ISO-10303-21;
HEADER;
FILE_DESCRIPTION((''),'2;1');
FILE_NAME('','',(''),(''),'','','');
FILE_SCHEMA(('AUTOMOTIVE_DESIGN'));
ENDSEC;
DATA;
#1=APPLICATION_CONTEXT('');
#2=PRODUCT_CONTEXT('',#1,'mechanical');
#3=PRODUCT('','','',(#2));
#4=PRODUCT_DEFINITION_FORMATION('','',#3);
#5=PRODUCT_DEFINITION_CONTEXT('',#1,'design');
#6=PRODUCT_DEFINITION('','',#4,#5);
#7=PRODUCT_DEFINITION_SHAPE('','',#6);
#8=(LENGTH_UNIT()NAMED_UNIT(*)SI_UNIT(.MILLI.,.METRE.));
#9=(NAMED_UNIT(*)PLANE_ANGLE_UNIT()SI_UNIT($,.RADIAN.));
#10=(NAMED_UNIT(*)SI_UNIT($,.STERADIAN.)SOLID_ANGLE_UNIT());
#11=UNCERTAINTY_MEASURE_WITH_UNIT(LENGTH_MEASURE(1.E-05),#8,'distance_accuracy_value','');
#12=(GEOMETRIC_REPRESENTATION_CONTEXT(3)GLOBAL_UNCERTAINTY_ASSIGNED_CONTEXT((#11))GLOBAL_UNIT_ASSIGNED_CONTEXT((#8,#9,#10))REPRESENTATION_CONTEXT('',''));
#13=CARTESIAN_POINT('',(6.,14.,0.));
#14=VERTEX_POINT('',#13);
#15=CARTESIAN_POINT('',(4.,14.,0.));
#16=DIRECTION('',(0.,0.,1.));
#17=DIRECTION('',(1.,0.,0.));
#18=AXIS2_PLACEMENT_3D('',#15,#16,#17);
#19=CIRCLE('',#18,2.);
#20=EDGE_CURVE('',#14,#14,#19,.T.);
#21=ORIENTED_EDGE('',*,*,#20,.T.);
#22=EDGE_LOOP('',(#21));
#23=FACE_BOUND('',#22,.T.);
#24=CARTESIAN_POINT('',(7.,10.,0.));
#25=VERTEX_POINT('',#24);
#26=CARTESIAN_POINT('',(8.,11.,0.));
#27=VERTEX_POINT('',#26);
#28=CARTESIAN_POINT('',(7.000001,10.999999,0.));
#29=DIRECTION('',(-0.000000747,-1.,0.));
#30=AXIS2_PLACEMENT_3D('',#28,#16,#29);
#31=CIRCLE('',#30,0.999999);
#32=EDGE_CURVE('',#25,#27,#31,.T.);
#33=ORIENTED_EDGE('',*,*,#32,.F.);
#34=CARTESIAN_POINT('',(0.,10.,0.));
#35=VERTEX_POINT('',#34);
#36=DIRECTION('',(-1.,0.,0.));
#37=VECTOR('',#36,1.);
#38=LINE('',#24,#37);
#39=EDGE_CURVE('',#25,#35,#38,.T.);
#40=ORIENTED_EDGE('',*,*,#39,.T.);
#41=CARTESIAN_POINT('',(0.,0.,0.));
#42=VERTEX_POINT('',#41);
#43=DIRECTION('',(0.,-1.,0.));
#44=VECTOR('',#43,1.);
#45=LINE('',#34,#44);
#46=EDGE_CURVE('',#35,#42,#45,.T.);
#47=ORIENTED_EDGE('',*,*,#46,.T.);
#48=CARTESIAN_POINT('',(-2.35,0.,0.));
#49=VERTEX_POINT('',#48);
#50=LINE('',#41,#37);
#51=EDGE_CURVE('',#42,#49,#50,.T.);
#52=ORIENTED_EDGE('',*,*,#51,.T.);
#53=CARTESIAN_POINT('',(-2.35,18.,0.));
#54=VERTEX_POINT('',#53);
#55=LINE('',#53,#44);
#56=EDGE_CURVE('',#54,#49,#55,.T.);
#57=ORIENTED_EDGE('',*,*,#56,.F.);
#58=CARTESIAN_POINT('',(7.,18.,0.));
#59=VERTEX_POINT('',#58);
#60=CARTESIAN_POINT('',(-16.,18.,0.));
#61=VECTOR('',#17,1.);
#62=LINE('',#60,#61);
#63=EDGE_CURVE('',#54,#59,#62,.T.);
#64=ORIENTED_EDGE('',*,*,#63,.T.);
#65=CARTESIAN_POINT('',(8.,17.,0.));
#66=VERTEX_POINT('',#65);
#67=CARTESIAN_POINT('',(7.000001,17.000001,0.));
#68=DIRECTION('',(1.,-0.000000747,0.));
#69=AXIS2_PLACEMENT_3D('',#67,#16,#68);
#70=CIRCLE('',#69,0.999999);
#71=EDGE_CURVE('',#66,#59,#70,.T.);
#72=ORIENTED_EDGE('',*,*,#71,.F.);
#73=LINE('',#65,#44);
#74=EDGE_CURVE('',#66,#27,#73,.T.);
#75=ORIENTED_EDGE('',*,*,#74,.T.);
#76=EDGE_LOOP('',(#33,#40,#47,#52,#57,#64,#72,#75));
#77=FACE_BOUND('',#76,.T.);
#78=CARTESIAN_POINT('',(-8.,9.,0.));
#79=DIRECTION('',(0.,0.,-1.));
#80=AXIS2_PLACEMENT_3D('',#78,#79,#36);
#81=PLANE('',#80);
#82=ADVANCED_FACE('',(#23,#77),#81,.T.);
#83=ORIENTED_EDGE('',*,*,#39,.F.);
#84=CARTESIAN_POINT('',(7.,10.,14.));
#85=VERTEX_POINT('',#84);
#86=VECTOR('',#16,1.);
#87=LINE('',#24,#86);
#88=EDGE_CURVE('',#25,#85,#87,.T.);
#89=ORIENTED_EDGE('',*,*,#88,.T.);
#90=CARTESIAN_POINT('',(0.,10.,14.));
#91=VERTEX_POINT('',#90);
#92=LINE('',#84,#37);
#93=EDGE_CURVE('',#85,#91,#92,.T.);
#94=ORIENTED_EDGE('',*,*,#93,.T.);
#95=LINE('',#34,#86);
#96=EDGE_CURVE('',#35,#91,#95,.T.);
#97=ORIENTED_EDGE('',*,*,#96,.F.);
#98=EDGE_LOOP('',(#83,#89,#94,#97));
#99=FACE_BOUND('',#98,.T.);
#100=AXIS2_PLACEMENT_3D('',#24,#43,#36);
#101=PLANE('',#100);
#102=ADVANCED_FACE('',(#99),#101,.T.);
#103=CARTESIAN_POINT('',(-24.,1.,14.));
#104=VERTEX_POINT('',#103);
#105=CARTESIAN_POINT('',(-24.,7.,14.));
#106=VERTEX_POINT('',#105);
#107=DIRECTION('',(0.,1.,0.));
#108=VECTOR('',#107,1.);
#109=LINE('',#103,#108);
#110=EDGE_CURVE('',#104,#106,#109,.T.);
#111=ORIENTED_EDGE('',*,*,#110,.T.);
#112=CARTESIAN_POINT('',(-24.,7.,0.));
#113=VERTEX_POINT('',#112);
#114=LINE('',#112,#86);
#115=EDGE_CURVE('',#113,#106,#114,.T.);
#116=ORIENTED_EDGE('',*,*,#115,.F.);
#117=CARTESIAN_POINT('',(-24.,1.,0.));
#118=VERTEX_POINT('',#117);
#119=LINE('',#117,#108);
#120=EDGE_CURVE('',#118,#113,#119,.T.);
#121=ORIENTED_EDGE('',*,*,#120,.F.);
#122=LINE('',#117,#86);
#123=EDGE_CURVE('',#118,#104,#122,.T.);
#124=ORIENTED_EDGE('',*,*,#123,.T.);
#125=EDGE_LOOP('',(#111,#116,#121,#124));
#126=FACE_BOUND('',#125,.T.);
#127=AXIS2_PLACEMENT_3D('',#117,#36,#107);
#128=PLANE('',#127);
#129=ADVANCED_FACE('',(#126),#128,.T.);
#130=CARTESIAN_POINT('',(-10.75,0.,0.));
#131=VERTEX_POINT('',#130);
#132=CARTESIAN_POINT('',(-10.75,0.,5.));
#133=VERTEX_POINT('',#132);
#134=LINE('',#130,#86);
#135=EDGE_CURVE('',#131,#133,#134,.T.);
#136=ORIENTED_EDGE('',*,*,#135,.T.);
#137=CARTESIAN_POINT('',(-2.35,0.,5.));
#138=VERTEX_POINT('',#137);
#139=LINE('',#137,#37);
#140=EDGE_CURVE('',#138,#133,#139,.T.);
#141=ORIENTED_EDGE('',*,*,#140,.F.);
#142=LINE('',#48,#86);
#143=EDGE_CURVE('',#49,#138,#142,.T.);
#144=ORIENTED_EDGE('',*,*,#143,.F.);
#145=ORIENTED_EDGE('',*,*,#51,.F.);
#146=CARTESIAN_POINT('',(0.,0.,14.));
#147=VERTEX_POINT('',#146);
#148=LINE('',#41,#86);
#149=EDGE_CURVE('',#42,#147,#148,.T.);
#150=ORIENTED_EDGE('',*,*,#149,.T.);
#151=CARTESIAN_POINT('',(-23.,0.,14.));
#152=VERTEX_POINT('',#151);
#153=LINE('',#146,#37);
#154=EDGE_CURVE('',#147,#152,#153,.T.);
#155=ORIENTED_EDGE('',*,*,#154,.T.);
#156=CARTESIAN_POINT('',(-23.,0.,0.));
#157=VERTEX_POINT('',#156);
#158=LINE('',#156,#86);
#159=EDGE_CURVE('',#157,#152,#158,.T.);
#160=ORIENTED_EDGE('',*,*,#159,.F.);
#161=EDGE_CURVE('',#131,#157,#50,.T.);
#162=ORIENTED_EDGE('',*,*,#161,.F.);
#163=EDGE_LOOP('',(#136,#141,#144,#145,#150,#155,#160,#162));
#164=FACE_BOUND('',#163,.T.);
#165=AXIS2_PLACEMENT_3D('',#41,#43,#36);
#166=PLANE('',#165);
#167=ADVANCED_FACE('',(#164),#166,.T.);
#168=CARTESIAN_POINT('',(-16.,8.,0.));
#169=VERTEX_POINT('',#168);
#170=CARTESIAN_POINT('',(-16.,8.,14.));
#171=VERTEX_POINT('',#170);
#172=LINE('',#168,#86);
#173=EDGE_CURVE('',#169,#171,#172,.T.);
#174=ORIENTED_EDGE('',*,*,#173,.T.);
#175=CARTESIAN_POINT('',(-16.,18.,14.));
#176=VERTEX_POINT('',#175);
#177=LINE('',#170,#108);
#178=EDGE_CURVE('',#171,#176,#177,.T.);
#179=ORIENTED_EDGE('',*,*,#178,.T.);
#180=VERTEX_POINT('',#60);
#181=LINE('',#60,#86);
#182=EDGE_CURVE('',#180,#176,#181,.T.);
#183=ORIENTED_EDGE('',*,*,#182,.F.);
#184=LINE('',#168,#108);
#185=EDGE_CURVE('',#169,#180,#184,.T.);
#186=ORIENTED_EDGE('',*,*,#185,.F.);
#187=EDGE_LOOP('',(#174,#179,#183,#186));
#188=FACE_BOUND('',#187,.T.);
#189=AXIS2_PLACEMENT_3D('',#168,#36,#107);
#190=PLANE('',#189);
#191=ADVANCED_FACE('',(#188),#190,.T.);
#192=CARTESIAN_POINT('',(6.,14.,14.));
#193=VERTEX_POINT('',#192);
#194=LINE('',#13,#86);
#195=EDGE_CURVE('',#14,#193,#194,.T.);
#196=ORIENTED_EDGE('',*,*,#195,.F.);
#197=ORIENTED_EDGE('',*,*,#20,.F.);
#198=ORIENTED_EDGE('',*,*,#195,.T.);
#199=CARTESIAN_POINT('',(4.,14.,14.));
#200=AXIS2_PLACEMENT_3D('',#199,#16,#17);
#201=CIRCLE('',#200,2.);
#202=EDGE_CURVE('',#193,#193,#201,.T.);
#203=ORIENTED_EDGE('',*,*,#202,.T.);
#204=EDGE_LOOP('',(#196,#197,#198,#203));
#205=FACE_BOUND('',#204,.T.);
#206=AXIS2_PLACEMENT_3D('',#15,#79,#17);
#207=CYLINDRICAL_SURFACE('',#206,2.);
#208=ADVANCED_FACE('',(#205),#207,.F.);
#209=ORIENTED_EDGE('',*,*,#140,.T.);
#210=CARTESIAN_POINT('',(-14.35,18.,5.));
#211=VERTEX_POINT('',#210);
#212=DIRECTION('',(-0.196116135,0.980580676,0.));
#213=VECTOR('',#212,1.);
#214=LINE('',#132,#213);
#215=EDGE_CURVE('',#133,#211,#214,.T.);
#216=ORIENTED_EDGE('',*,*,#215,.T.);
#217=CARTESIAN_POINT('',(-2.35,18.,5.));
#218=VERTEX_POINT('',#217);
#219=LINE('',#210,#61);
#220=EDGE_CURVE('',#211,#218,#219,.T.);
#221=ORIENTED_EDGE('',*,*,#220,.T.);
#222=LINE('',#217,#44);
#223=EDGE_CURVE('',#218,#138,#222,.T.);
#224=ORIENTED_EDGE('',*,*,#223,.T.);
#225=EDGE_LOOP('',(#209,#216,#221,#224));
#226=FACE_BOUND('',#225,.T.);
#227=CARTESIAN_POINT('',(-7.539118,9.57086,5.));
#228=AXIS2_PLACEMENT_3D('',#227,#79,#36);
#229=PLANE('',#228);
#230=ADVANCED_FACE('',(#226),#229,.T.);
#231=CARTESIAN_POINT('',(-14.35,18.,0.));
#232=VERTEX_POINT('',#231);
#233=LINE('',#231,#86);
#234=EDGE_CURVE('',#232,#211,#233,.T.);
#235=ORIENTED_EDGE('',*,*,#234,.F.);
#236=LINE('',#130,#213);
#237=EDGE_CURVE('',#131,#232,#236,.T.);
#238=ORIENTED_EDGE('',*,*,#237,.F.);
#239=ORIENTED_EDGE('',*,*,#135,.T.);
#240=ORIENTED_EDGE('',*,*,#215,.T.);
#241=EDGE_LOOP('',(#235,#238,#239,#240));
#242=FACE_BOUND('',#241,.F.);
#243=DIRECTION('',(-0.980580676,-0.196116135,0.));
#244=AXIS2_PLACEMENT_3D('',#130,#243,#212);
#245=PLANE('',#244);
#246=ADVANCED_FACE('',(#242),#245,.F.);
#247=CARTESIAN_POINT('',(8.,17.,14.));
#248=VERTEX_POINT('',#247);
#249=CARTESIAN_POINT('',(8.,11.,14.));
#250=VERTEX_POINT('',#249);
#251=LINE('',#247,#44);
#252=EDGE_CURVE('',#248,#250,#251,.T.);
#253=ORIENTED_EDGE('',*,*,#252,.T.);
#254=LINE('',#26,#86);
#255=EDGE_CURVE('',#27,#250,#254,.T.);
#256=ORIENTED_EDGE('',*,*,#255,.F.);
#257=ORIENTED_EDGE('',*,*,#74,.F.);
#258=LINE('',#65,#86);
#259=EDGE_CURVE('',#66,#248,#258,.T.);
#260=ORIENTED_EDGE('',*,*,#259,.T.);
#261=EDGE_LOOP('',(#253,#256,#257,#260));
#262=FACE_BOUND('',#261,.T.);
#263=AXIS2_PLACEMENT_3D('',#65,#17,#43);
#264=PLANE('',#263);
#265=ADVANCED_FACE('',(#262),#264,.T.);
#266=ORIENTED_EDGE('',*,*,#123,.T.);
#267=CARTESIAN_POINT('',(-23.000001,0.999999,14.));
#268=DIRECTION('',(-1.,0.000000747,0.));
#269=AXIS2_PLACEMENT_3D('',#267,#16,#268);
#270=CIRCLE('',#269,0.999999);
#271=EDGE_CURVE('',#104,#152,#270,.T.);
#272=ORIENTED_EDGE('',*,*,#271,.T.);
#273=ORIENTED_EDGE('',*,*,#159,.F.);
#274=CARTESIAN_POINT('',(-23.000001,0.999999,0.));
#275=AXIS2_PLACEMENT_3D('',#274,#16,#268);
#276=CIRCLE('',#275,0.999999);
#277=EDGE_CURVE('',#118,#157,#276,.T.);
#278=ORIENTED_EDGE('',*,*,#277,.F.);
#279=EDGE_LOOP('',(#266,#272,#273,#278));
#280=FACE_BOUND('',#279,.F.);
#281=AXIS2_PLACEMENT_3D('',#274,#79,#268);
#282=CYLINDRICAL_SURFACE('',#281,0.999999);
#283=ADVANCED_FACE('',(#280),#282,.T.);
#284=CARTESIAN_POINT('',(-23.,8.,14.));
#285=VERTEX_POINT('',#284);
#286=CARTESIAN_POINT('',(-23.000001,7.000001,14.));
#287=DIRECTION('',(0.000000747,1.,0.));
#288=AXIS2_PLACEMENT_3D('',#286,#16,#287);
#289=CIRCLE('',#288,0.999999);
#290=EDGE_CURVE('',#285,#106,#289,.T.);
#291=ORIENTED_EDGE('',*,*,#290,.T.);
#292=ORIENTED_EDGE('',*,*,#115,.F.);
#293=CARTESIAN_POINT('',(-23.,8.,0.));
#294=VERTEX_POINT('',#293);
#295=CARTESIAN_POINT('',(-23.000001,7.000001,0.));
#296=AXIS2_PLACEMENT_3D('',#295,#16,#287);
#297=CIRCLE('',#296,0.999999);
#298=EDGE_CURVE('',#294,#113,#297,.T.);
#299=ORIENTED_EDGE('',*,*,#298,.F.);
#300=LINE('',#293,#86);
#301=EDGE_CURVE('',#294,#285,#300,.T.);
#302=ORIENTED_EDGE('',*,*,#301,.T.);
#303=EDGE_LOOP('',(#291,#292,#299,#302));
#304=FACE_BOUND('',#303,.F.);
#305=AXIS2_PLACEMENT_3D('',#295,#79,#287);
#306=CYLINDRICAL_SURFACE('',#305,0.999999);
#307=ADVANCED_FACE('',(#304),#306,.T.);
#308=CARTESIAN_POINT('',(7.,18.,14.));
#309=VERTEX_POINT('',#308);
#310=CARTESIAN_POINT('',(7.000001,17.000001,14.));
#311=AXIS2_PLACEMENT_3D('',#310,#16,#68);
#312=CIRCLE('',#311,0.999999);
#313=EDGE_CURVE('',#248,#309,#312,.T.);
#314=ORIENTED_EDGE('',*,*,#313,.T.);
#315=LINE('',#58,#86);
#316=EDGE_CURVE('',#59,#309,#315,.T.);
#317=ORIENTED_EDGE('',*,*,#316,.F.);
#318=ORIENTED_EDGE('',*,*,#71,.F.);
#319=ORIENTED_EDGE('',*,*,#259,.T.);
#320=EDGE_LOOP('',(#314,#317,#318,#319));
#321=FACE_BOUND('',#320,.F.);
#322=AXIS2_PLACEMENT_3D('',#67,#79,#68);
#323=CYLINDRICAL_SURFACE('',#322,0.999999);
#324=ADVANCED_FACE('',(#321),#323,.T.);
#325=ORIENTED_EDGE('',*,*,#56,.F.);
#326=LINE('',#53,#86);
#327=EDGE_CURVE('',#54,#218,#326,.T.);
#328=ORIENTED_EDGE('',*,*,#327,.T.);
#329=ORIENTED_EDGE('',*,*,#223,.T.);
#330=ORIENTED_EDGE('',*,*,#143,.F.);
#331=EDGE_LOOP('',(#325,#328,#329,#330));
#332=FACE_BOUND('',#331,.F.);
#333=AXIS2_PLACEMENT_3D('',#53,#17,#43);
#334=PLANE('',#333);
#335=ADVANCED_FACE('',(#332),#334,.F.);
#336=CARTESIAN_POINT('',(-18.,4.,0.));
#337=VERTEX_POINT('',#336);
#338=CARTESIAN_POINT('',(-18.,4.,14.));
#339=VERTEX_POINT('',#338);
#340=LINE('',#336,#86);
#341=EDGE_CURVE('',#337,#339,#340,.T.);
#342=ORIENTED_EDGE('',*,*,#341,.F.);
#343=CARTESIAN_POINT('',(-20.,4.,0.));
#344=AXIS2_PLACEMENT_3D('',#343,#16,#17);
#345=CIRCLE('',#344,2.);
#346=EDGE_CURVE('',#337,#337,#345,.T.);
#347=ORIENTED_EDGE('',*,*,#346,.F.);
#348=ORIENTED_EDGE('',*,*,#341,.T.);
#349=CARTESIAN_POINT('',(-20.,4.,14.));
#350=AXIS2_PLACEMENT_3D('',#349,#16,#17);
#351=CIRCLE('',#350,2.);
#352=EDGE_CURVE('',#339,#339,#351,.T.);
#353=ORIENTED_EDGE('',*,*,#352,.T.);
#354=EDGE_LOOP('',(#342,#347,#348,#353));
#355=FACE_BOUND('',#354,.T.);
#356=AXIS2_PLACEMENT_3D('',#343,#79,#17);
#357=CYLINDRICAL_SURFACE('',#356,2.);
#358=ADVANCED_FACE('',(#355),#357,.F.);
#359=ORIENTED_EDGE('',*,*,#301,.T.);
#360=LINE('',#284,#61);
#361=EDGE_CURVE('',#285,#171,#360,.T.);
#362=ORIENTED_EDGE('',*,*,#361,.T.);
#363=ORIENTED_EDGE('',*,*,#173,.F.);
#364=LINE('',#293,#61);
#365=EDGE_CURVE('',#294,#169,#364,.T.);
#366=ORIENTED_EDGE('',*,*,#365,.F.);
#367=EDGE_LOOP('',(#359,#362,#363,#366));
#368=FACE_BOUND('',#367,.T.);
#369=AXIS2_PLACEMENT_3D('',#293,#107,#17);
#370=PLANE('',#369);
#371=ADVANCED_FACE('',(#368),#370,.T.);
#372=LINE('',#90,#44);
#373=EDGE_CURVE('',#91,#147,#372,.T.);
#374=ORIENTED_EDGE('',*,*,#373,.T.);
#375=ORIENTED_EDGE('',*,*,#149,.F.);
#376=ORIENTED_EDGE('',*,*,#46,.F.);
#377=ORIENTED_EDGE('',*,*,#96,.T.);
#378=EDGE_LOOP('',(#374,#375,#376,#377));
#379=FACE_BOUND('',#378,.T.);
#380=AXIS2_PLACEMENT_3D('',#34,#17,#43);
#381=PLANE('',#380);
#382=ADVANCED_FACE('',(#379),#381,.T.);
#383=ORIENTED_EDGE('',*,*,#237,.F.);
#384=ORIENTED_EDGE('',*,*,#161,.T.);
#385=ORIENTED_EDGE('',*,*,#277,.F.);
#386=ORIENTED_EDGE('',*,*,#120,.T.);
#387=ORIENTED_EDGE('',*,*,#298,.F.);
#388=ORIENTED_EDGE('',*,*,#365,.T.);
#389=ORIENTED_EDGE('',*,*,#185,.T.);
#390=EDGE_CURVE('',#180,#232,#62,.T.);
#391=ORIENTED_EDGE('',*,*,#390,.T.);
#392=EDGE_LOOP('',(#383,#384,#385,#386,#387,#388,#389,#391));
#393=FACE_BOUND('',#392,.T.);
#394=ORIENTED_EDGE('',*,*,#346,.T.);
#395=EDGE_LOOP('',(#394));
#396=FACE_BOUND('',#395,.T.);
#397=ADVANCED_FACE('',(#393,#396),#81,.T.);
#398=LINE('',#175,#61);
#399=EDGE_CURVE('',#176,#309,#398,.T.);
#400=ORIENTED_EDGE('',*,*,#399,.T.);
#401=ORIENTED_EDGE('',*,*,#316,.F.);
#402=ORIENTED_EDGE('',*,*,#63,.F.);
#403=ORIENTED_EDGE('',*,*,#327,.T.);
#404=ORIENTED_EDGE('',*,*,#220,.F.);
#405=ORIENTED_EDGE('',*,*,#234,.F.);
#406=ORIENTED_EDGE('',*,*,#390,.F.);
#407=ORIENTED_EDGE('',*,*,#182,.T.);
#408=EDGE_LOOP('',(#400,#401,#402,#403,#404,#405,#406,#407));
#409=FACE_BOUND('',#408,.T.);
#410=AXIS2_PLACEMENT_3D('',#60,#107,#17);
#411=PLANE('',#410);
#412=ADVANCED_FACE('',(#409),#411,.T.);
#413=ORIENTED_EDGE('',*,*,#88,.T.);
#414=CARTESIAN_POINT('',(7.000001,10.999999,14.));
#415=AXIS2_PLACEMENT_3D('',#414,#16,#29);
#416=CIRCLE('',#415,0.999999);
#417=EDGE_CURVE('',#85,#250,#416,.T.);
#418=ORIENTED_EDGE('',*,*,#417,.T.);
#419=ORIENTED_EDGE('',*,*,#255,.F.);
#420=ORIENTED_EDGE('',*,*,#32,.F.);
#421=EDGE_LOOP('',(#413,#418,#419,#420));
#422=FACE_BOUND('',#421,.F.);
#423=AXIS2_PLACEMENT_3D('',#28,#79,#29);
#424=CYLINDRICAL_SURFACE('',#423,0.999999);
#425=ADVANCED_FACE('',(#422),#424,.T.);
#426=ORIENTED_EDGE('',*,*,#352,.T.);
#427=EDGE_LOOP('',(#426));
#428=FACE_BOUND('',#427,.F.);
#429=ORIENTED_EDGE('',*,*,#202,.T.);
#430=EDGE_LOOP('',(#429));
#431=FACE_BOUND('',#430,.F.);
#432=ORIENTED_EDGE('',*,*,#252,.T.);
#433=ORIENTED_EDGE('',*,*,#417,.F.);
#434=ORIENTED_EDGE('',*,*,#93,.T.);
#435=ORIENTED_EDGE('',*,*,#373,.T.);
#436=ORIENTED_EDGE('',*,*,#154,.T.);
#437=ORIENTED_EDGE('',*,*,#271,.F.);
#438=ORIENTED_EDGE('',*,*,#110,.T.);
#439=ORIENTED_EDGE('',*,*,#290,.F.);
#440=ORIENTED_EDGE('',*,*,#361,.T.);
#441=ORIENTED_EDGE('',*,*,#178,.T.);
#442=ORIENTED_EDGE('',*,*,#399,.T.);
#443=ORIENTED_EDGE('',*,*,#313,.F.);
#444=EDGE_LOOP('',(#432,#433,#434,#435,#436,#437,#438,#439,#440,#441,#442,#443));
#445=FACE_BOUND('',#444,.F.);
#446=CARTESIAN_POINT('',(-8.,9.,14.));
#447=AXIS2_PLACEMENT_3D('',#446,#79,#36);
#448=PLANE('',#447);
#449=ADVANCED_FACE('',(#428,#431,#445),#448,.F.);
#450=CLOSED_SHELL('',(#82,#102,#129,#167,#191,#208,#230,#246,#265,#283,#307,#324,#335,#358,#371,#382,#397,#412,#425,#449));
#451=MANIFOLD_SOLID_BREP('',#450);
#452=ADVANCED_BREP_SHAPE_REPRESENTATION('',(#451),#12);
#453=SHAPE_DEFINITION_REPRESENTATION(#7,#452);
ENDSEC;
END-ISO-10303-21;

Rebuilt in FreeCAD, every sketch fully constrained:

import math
import FreeCAD as App
import Part
import Sketcher
from FreeCAD import Vector
Q = App.Units.Quantity

doc = App.newDocument("Part")
body = doc.addObject("PartDesign::Body", "Body")

# Sketch on XY plane
sketch1 = doc.addObject("Sketcher::SketchObject", "Sketch")
body.addObject(sketch1)
sketch1.AttachmentSupport = (doc.XY_Plane, [""])
sketch1.MapMode = "FlatFace"
sketch1.addGeometry([
    Part.LineSegment(Vector(7, 18, 0), Vector(-16, 18, 0)),  # 0
    Part.LineSegment(Vector(-16, 18, 0), Vector(-16, 8, 0)),  # 1
    Part.LineSegment(Vector(-16, 8, 0), Vector(-23, 8, 0)),  # 2
    Part.ArcOfCircle(Part.Circle(Vector(-23.000001, 7.000001, 0), Vector(0, 0, 1), 0.999999), math.radians(89.999957), math.radians(180.000043)),  # 3
    Part.LineSegment(Vector(-24, 7, 0), Vector(-24, 1, 0)),  # 4
    Part.ArcOfCircle(Part.Circle(Vector(-23.000001, 0.999999, 0), Vector(0, 0, 1), 0.999999), math.radians(179.999957), math.radians(270.000043)),  # 5
    Part.LineSegment(Vector(-23, 0, 0), Vector(0, 0, 0)),  # 6
    Part.LineSegment(Vector(0, 0, 0), Vector(0, 10, 0)),  # 7
    Part.LineSegment(Vector(0, 10, 0), Vector(7, 10, 0)),  # 8
    Part.ArcOfCircle(Part.Circle(Vector(7.000001, 10.999999, 0), Vector(0, 0, 1), 0.999999), math.radians(-90.000043), math.radians(0.000043)),  # 9
    Part.LineSegment(Vector(8, 11, 0), Vector(8, 17, 0)),  # 10
    Part.ArcOfCircle(Part.Circle(Vector(7.000001, 17.000001, 0), Vector(0, 0, 1), 0.999999), math.radians(-0.000043), math.radians(90.000043)),  # 11
    Part.Circle(Vector(-20, 4, 0), Vector(0, 0, 1), 2),  # 12
    Part.Circle(Vector(4, 14, 0), Vector(0, 0, 1), 2),  # 13
], False)
sketch1.addConstraint([
    Sketcher.Constraint("Coincident", 0, 2, 1, 1),
    Sketcher.Constraint("Coincident", 1, 2, 2, 1),
    Sketcher.Constraint("Tangent", 2, 2, 3, 1),
    Sketcher.Constraint("Tangent", 3, 2, 4, 1),
    Sketcher.Constraint("Tangent", 4, 2, 5, 1),
    Sketcher.Constraint("Tangent", 5, 2, 6, 1),
    Sketcher.Constraint("Coincident", 6, 2, 7, 1),
    Sketcher.Constraint("Coincident", 7, 2, 8, 1),
    Sketcher.Constraint("Tangent", 8, 2, 9, 1),
    Sketcher.Constraint("Tangent", 9, 2, 10, 1),
    Sketcher.Constraint("Tangent", 10, 2, 11, 1),
    Sketcher.Constraint("Tangent", 11, 2, 0, 1),
    Sketcher.Constraint("Horizontal", 0),
    Sketcher.Constraint("Vertical", 1),
    Sketcher.Constraint("Horizontal", 2),
    Sketcher.Constraint("Vertical", 4),
    Sketcher.Constraint("Horizontal", 6),
    Sketcher.Constraint("Vertical", 7),
    Sketcher.Constraint("Horizontal", 8),
    Sketcher.Constraint("Vertical", 10),
    Sketcher.Constraint("Coincident", 6, 2, -1, 1),
    Sketcher.Constraint("Equal", 3, 5),
    Sketcher.Constraint("Equal", 5, 9),
    Sketcher.Constraint("Equal", 9, 11),
    Sketcher.Constraint("Equal", 12, 13),
    Sketcher.Constraint("Equal", 0, 6),
    Sketcher.Constraint("Equal", 1, 7),
    Sketcher.Constraint("Diameter", 12, Q("4 mm")),
    Sketcher.Constraint("Radius", 3, Q("0.999999 mm")),
    Sketcher.Constraint("DistanceX", 0, 2, 0, 1, Q("23 mm")),
    Sketcher.Constraint("DistanceX", 2, 2, 2, 1, Q("7 mm")),
    Sketcher.Constraint("DistanceY", 1, 2, 1, 1, Q("10 mm")),
    Sketcher.Constraint("DistanceY", 4, 2, 4, 1, Q("6 mm")),
    Sketcher.Constraint("DistanceX", 12, 3, -1, 1, Q("20 mm")),
    Sketcher.Constraint("DistanceY", -1, 1, 12, 3, Q("4 mm")),
    Sketcher.Constraint("DistanceX", -1, 1, 13, 3, Q("4 mm")),
    Sketcher.Constraint("DistanceY", -1, 1, 13, 3, Q("14 mm")),
])
pad1 = doc.addObject("PartDesign::Pad", "Pad")
body.addObject(pad1)
pad1.Profile = sketch1
pad1.Length = 14

# Sketch on XY plane
sketch2 = doc.addObject("Sketcher::SketchObject", "Sketch001")
body.addObject(sketch2)
sketch2.AttachmentSupport = (doc.XY_Plane, [""])
sketch2.MapMode = "FlatFace"
sketch2.addGeometry([
    Part.LineSegment(Vector(-2.35, 0, 0), Vector(-2.35, 18, 0)),
    Part.LineSegment(Vector(-2.35, 18, 0), Vector(-14.35, 18, 0)),
    Part.LineSegment(Vector(-14.35, 18, 0), Vector(-10.75, 0, 0)),
    Part.LineSegment(Vector(-10.75, 0, 0), Vector(-2.35, 0, 0)),
], False)
sketch2.addConstraint([
    Sketcher.Constraint("Coincident", 0, 2, 1, 1),
    Sketcher.Constraint("Coincident", 1, 2, 2, 1),
    Sketcher.Constraint("Coincident", 2, 2, 3, 1),
    Sketcher.Constraint("Coincident", 3, 2, 0, 1),
    Sketcher.Constraint("Vertical", 0),
    Sketcher.Constraint("Horizontal", 1),
    Sketcher.Constraint("Horizontal", 3),
    Sketcher.Constraint("PointOnObject", 2, 2, -1),
    Sketcher.Constraint("DistanceX", 1, 2, 1, 1, Q("12 mm")),
    Sketcher.Constraint("DistanceY", 0, 1, 0, 2, Q("18 mm")),
    Sketcher.Constraint("DistanceX", 3, 1, 3, 2, Q("8.4 mm")),
    Sketcher.Constraint("DistanceX", 0, 2, -1, 1, Q("2.35 mm")),
])
pocket1 = doc.addObject("PartDesign::Pocket", "Pocket")
body.addObject(pocket1)
pocket1.Profile = sketch2
pocket1.Length = 5
pocket1.Reversed = True

doc.recompute()
